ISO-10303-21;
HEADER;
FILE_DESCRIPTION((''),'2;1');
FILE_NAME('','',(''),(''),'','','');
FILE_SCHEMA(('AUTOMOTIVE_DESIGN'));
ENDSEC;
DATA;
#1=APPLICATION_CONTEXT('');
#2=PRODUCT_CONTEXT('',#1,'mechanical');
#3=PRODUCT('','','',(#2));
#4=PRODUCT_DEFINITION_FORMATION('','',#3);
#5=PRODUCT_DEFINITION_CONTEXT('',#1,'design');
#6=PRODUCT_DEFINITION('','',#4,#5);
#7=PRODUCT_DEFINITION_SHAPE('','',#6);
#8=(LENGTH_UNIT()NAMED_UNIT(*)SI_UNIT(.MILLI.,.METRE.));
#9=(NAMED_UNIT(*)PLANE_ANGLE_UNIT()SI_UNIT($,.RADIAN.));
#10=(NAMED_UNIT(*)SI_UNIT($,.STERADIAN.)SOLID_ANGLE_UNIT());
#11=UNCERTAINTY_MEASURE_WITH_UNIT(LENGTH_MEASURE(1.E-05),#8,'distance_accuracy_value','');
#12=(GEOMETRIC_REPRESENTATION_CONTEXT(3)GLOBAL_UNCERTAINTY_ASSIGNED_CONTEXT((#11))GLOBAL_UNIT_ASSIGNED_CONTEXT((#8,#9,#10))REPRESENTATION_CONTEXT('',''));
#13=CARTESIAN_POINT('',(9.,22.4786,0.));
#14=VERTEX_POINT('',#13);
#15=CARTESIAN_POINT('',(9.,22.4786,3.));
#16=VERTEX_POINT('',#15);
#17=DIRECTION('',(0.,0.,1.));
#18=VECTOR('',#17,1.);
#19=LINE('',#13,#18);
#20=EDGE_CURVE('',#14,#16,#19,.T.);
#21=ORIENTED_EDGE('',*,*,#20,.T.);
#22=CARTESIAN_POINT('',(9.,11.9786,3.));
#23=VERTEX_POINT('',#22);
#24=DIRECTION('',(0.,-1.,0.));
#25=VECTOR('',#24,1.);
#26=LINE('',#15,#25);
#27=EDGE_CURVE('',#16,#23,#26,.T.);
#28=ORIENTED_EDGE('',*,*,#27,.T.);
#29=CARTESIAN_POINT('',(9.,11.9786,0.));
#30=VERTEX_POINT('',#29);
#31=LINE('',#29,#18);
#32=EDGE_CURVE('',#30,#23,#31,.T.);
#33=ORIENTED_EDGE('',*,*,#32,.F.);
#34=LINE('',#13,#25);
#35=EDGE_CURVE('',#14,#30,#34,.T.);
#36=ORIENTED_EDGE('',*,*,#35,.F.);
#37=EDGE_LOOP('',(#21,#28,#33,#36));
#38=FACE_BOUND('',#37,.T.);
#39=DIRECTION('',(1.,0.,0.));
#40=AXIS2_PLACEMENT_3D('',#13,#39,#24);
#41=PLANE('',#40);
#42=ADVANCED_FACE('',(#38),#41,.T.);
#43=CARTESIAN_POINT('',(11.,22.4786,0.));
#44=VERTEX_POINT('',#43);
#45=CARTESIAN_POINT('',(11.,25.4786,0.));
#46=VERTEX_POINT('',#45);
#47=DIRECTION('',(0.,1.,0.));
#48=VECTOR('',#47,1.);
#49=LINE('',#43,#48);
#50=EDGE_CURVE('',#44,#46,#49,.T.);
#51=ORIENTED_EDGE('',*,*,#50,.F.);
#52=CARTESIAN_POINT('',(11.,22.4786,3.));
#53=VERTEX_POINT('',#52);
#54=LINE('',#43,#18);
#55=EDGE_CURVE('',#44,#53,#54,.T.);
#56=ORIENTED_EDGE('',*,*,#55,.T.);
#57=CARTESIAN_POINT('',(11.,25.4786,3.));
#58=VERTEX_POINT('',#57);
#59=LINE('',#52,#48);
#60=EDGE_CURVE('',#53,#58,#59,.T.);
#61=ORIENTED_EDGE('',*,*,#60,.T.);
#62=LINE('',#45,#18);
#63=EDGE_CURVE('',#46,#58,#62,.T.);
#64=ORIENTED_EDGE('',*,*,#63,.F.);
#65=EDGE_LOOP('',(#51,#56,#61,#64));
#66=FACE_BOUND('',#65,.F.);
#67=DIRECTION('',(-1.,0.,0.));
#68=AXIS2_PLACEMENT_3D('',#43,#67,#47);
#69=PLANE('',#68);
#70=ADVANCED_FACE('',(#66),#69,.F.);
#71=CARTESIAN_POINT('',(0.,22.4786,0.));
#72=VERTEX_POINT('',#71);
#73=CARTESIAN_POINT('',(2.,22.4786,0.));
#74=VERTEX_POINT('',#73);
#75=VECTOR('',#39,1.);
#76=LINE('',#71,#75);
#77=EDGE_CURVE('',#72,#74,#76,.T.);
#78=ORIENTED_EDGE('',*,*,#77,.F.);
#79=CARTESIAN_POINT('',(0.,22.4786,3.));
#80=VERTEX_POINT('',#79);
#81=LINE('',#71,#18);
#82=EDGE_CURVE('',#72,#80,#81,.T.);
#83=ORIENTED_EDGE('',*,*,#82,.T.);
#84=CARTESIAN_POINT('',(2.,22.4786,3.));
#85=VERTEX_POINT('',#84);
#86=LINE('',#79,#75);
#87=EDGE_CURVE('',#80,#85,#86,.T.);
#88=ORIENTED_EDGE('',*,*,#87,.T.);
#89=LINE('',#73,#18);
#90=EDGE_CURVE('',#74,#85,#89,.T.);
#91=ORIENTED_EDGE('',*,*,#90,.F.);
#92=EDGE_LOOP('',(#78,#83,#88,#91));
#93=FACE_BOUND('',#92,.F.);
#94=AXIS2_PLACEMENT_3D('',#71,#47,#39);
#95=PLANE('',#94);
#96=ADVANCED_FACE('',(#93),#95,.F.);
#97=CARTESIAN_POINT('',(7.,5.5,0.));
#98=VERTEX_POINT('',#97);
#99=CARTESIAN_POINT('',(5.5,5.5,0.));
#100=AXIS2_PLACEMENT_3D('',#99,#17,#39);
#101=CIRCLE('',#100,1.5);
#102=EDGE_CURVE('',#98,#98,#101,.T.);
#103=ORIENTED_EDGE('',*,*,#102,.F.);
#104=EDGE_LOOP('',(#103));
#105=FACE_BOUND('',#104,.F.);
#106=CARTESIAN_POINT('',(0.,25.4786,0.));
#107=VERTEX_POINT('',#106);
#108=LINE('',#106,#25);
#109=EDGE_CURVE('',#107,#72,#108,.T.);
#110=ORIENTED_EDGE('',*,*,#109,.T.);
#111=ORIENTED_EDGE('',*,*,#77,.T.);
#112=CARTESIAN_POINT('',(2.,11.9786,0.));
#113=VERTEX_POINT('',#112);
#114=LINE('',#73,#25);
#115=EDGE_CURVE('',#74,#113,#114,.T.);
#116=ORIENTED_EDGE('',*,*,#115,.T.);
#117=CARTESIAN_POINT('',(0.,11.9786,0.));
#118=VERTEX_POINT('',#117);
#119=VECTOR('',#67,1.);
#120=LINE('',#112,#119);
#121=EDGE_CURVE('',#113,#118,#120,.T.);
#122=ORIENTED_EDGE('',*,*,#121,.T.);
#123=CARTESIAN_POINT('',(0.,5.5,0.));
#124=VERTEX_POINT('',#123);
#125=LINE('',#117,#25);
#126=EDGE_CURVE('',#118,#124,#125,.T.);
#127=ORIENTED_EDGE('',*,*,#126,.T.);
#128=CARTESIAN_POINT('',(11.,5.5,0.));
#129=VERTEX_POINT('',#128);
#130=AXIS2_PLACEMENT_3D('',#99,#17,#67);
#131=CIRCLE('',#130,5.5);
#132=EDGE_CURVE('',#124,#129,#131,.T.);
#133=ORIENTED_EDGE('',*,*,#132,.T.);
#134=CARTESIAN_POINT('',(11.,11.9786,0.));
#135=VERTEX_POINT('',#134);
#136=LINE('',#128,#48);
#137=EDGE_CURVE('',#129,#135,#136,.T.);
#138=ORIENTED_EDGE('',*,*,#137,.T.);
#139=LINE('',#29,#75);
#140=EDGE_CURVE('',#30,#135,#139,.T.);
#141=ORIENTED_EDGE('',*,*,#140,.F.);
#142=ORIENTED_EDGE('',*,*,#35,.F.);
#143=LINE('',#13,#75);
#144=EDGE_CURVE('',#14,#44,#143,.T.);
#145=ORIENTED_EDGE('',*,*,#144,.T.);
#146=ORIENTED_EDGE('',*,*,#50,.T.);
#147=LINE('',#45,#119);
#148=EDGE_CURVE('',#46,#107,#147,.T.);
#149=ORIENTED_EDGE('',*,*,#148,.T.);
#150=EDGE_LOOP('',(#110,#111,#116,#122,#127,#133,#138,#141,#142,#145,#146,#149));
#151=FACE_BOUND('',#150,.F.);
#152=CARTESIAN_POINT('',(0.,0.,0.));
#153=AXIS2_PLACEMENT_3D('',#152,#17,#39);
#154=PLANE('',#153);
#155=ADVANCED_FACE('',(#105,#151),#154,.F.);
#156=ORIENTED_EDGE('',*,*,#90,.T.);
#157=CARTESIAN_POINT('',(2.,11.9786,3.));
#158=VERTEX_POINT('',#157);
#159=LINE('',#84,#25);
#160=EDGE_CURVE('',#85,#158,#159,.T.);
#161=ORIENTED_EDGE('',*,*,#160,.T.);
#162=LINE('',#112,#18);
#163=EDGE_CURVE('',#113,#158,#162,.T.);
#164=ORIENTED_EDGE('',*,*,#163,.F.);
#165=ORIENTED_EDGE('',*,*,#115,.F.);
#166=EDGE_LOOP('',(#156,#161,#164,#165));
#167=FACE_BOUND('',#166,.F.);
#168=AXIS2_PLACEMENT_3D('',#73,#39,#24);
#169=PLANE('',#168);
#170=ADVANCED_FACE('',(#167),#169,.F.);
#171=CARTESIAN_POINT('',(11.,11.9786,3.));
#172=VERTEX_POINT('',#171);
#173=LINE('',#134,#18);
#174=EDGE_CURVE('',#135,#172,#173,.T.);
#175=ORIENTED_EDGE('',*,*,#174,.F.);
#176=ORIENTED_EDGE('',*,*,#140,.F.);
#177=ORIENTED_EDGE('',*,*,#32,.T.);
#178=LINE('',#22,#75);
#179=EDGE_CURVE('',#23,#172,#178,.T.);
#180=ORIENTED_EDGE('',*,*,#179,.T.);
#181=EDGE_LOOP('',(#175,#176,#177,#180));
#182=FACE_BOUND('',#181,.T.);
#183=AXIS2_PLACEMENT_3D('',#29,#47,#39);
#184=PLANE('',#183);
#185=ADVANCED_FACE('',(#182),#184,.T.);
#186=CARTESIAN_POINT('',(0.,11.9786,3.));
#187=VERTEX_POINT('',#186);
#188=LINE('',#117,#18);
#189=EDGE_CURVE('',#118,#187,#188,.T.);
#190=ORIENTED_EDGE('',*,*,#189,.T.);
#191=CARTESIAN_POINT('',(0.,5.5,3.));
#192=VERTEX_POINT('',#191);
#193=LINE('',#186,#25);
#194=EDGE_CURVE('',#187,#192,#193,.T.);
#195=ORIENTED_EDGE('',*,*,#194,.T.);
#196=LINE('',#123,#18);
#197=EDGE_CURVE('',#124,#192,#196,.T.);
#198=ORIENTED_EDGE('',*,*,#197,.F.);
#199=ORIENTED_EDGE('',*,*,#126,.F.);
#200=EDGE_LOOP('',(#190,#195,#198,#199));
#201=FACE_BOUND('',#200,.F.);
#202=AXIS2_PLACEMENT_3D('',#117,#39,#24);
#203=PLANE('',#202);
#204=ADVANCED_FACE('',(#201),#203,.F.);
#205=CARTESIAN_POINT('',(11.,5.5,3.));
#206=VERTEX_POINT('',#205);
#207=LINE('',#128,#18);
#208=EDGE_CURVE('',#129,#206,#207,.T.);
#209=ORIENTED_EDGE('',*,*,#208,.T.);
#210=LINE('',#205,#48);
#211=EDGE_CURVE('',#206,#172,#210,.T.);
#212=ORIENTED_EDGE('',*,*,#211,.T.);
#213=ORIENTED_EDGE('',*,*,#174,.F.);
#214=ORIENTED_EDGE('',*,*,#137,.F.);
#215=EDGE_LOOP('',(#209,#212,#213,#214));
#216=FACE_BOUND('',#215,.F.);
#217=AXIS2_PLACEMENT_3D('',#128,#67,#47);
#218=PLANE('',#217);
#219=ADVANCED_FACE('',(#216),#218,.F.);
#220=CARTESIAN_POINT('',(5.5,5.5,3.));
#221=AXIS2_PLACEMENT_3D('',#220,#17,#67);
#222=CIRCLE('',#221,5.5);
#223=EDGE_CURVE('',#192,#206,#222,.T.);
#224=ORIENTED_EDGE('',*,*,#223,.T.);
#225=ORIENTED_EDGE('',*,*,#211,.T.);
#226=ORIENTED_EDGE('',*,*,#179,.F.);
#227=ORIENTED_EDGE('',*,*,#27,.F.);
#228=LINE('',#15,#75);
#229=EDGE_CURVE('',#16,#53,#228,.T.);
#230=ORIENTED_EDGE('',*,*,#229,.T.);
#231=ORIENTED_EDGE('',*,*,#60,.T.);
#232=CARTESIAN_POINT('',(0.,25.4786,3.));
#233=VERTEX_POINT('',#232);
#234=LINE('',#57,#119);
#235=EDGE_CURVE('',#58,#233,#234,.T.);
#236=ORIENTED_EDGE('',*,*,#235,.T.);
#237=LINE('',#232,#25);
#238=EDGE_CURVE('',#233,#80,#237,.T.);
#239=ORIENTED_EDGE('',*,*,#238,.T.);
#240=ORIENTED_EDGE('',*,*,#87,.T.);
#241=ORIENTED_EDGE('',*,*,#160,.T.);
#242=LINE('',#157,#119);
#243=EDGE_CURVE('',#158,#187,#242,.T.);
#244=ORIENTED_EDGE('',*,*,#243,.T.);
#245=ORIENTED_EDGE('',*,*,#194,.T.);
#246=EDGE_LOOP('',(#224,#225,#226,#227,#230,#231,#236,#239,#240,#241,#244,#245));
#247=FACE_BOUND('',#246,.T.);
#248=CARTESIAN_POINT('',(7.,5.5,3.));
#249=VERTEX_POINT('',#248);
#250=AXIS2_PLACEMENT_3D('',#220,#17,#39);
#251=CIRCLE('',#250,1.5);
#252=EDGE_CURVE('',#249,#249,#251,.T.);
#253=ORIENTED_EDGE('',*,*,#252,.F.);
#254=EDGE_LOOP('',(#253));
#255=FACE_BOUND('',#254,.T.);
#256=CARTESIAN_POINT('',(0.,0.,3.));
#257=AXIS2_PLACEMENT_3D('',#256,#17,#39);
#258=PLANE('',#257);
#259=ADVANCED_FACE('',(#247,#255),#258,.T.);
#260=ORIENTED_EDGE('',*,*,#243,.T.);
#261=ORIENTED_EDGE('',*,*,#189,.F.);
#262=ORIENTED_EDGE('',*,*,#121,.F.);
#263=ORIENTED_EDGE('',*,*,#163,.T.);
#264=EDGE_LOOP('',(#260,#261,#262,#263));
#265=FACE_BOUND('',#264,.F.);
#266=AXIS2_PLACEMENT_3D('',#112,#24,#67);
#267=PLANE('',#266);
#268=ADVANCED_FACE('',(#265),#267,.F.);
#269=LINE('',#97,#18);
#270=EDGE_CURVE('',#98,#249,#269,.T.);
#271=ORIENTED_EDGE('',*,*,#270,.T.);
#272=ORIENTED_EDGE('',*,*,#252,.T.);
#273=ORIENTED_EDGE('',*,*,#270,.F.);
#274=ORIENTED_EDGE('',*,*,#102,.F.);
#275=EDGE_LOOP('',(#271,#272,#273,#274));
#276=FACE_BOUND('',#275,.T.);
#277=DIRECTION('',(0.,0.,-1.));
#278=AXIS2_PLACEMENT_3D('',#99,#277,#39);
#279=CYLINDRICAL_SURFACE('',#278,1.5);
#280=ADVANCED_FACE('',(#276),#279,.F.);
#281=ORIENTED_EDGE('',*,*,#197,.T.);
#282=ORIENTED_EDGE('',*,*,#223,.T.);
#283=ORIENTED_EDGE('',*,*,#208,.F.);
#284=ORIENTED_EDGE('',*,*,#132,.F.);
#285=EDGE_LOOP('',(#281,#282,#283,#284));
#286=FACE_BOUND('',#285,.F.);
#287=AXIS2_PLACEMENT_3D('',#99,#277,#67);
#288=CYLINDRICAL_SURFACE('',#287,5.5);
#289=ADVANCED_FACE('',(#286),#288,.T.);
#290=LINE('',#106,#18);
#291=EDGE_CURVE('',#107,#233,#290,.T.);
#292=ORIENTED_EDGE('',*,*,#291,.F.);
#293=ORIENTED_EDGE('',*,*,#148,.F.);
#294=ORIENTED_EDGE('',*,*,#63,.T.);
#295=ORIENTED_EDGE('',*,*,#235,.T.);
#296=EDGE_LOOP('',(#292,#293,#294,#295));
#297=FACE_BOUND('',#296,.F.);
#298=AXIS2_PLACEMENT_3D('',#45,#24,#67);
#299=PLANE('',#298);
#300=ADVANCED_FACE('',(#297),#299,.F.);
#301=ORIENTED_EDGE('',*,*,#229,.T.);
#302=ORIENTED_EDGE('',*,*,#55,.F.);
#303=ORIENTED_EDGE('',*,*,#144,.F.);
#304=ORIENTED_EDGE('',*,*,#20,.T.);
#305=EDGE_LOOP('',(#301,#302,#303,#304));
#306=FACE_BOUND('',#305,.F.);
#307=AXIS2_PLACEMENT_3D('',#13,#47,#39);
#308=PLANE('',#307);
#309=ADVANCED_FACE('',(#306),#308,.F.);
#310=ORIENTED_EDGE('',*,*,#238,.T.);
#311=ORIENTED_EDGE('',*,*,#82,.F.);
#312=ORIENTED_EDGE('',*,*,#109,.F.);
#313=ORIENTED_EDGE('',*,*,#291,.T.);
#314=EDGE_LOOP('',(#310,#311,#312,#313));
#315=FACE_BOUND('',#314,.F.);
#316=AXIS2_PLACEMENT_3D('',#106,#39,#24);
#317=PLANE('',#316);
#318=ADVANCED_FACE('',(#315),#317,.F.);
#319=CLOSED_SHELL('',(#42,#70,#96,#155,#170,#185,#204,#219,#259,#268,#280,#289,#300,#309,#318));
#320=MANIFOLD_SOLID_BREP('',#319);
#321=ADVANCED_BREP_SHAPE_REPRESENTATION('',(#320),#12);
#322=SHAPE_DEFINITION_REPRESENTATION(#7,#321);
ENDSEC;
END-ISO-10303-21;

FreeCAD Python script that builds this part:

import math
import FreeCAD as App
import Part
import Sketcher

V = App.Vector
Q = App.Units.Quantity

doc = App.newDocument("Part")
params = doc.addObject("Spreadsheet::Sheet", "Params")
for row, (alias, value) in enumerate([
    ("sketch1_diameter", "3 mm"),
    ("sketch1_radius", "5.5 mm"),
    ("sketch1_width", "2 mm"),
    ("sketch1_height", "3 mm"),
    ("sketch1_height2", "10.5 mm"),
    ("pad1_length", "3 mm"),
], start=1):
    params.set(f"A{row}", alias)
    params.set(f"B{row}", "=" + value)
    params.setAlias(f"B{row}", alias)

body = doc.addObject("PartDesign::Body", "Body")

sketch1 = doc.addObject("Sketcher::SketchObject", "Sketch")
body.addObject(sketch1)
sketch1.AttachmentSupport = (doc.XY_Plane, [""])
sketch1.MapMode = "FlatFace"
sketch1.addGeometry([
    Part.LineSegment(V(11, 22.4786, 0), V(11, 25.4786, 0)),
    Part.LineSegment(V(11, 25.4786, 0), V(0, 25.4786, 0)),
    Part.LineSegment(V(0, 25.4786, 0), V(0, 22.4786, 0)),
    Part.LineSegment(V(0, 22.4786, 0), V(2, 22.4786, 0)),
    Part.LineSegment(V(2, 22.4786, 0), V(2, 11.9786, 0)),
    Part.LineSegment(V(2, 11.9786, 0), V(0, 11.9786, 0)),
    Part.LineSegment(V(0, 11.9786, 0), V(0, 5.5, 0)),
    Part.ArcOfCircle(Part.Circle(V(5.5, 5.5, 0), V(0, 0, 1), 5.5), math.radians(180), math.radians(360)),
    Part.LineSegment(V(11, 5.5, 0), V(11, 11.9786, 0)),
    Part.LineSegment(V(11, 11.9786, 0), V(9, 11.9786, 0)),
    Part.LineSegment(V(9, 11.9786, 0), V(9, 22.4786, 0)),
    Part.LineSegment(V(9, 22.4786, 0), V(11, 22.4786, 0)),
    Part.Circle(V(5.5, 5.5, 0), V(0, 0, 1), 1.5),
], False)
sketch1.addConstraint([
    Sketcher.Constraint("Coincident", 0, 2, 1, 1),
    Sketcher.Constraint("Coincident", 1, 2, 2, 1),
    Sketcher.Constraint("Coincident", 2, 2, 3, 1),
    Sketcher.Constraint("Coincident", 3, 2, 4, 1),
    Sketcher.Constraint("Coincident", 4, 2, 5, 1),
    Sketcher.Constraint("Coincident", 5, 2, 6, 1),
    Sketcher.Constraint("Tangent", 6, 2, 7, 1),
    Sketcher.Constraint("Tangent", 7, 2, 8, 1),
    Sketcher.Constraint("Coincident", 8, 2, 9, 1),
    Sketcher.Constraint("Coincident", 9, 2, 10, 1),
    Sketcher.Constraint("Coincident", 10, 2, 11, 1),
    Sketcher.Constraint("Coincident", 11, 2, 0, 1),
    Sketcher.Constraint("Vertical", 0),
    Sketcher.Constraint("Horizontal", 1),
    Sketcher.Constraint("Vertical", 2),
    Sketcher.Constraint("Horizontal", 3),
    Sketcher.Constraint("Vertical", 4),
    Sketcher.Constraint("Horizontal", 5),
    Sketcher.Constraint("Vertical", 6),
    Sketcher.Constraint("Vertical", 8),
    Sketcher.Constraint("Horizontal", 9),
    Sketcher.Constraint("Vertical", 10),
    Sketcher.Constraint("Horizontal", 11),
    Sketcher.Constraint("Coincident", 12, 3, 7, 3),
    Sketcher.Constraint("PointOnObject", 1, 2, -2),
    Sketcher.Constraint("PointOnObject", 5, 2, -2),
    Sketcher.Constraint("Horizontal", 5, 2, 8, 2),
    Sketcher.Constraint("Horizontal", 3, 2, 10, 2),
    Sketcher.Constraint("Vertical", 0, 2, 7, 2),
    Sketcher.Constraint("Equal", 5, 9),
    Sketcher.Constraint("Diameter", 12, Q("3 mm")),
    Sketcher.Constraint("Radius", 7, Q("5.5 mm")),
    Sketcher.Constraint("DistanceX", 3, 1, 3, 2, Q("2 mm")),
    Sketcher.Constraint("DistanceY", 0, 1, 0, 2, Q("3 mm")),
    Sketcher.Constraint("DistanceY", 4, 2, 4, 1, Q("10.5 mm")),
    Sketcher.Constraint("DistanceY", 6, 2, 6, 1, Q("6.4786 mm")),
    Sketcher.Constraint("DistanceY", -1, 1, 7, 3, Q("5.5 mm")),
])
sketch1.setExpression("Constraints[30]", "Params.sketch1_diameter")
sketch1.setExpression("Constraints[31]", "Params.sketch1_radius")
sketch1.setExpression("Constraints[32]", "Params.sketch1_width")
sketch1.setExpression("Constraints[33]", "Params.sketch1_height")
sketch1.setExpression("Constraints[34]", "Params.sketch1_height2")
pad1 = doc.addObject("PartDesign::Pad", "Pad")
body.addObject(pad1)
pad1.Profile = sketch1
pad1.setExpression("Length", "Params.pad1_length")

doc.recompute()
